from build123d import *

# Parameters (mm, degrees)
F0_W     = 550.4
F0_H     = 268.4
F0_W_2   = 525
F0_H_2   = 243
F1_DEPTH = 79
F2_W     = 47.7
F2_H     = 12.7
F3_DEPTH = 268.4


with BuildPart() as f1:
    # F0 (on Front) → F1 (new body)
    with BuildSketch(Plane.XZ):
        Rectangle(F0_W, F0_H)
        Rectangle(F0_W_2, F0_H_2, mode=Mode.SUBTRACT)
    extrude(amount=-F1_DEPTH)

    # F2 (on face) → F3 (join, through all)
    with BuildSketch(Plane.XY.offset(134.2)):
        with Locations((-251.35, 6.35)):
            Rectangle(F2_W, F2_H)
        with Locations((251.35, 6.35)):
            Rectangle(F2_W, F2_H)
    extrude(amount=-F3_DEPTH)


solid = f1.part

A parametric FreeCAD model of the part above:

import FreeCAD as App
import Part
import Sketcher
from FreeCAD import Vector


def add_polygon(sketch, points):
    """Adds a closed chain of lines whose ends are joined by coincident constraints."""
    first, n = sketch.GeometryCount, len(points)
    for a, b in zip(points, points[1:] + points[:1]):
        sketch.addGeometry(Part.LineSegment(App.Vector(*a, 0), App.Vector(*b, 0)), False)
    for i in range(n):
        sketch.addConstraint(Sketcher.Constraint("Coincident", first + i, 2, first + (i + 1) % n, 1))

doc = App.newDocument("Part")
params = doc.addObject("Spreadsheet::Sheet", "Params")
for row, (alias, value) in enumerate([
    ("sketch1_width", "525 mm"),
    ("sketch1_height", "243 mm"),
    ("sketch1_width2", "550.4 mm"),
    ("sketch1_height2", "268.4 mm"),
    ("pad1_length", "79 mm"),
    ("sketch2_width", "47.7 mm"),
    ("sketch2_height", "12.7 mm"),
], start=1):
    params.set(f"A{row}", alias)
    params.set(f"B{row}", "=" + value)
    params.setAlias(f"B{row}", alias)

body = doc.addObject("PartDesign::Body", "Body")

sketch1 = body.newObject("Sketcher::SketchObject", "Sketch")
sketch1.AttachmentSupport = (doc.getObject("XZ_Plane"), [""])
sketch1.MapMode = "FlatFace"
add_polygon(sketch1, [(-275, 134), (-275, -134), (275, -134), (275, 134)])
add_polygon(sketch1, [(262, -122), (-262, -122), (-262, 122), (262, 122)])
sketch1.addConstraint([
    Sketcher.Constraint("Vertical", 0),
    Sketcher.Constraint("Horizontal", 1),
    Sketcher.Constraint("Vertical", 2),
    Sketcher.Constraint("Horizontal", 3),
    Sketcher.Constraint("Horizontal", 4),
    Sketcher.Constraint("Vertical", 5),
    Sketcher.Constraint("Horizontal", 6),
    Sketcher.Constraint("Vertical", 7),
    Sketcher.Constraint("Symmetric", 0, 2, 2, 2, -1, 1),
    Sketcher.Constraint("Symmetric", 4, 2, 6, 2, -1, 1),
    Sketcher.Constraint("DistanceX", 4, 2, 4, 1, 525.0),
    Sketcher.Constraint("DistanceY", 5, 1, 5, 2, 243.0),
    Sketcher.Constraint("DistanceX", 1, 1, 1, 2, 550.4),
    Sketcher.Constraint("DistanceY", 0, 2, 0, 1, 268.4),
])
sketch1.setExpression("Constraints[18]", "Params.sketch1_width")
sketch1.setExpression("Constraints[19]", "Params.sketch1_height")
sketch1.setExpression("Constraints[20]", "Params.sketch1_width2")
sketch1.setExpression("Constraints[21]", "Params.sketch1_height2")
pad1 = body.newObject("PartDesign::Pad", "Pad")
pad1.Profile = sketch1
pad1.setExpression("Length", "Params.pad1_length")
pad1.Reversed = True

sketch2 = body.newObject("Sketcher::SketchObject", "Sketch001")
sketch2.AttachmentSupport = (doc.getObject("XY_Plane"), [""])
sketch2.MapMode = "FlatFace"
sketch2.AttachmentOffset = App.Placement(Vector(0, 0, 134.2), App.Rotation())
add_polygon(sketch2, [(-275, 13), (-275, 0), (-228, 0), (-228, 13)])
add_polygon(sketch2, [(228, 13), (228, 0), (275, 0), (275, 13)])
sketch2.addConstraint([
    Sketcher.Constraint("Vertical", 0),
    Sketcher.Constraint("Horizontal", 1),
    Sketcher.Constraint("Vertical", 2),
    Sketcher.Constraint("Horizontal", 3),
    Sketcher.Constraint("Vertical", 4),
    Sketcher.Constraint("Horizontal", 5),
    Sketcher.Constraint("Vertical", 6),
    Sketcher.Constraint("Horizontal", 7),
    Sketcher.Constraint("Symmetric", 1, 2, 4, 2, -1, 1),
    Sketcher.Constraint("Symmetric", 0, 2, 5, 2, -2),
    Sketcher.Constraint("Horizontal", 3, 2, 6, 2),
    Sketcher.Constraint("DistanceX", 1, 1, 1, 2, 47.7),
    Sketcher.Constraint("DistanceY", 0, 2, 0, 1, 12.7),
    Sketcher.Constraint("DistanceX", 1, 2, 4, 2, 455.0),
])
sketch2.setExpression("Constraints[19]", "Params.sketch2_width")
sketch2.setExpression("Constraints[20]", "Params.sketch2_height")
pad2 = body.newObject("PartDesign::Pad", "Pad001")
pad2.Profile = sketch2
pad2.Type = "UpToLast"
pad2.Reversed = True

doc.recompute()
